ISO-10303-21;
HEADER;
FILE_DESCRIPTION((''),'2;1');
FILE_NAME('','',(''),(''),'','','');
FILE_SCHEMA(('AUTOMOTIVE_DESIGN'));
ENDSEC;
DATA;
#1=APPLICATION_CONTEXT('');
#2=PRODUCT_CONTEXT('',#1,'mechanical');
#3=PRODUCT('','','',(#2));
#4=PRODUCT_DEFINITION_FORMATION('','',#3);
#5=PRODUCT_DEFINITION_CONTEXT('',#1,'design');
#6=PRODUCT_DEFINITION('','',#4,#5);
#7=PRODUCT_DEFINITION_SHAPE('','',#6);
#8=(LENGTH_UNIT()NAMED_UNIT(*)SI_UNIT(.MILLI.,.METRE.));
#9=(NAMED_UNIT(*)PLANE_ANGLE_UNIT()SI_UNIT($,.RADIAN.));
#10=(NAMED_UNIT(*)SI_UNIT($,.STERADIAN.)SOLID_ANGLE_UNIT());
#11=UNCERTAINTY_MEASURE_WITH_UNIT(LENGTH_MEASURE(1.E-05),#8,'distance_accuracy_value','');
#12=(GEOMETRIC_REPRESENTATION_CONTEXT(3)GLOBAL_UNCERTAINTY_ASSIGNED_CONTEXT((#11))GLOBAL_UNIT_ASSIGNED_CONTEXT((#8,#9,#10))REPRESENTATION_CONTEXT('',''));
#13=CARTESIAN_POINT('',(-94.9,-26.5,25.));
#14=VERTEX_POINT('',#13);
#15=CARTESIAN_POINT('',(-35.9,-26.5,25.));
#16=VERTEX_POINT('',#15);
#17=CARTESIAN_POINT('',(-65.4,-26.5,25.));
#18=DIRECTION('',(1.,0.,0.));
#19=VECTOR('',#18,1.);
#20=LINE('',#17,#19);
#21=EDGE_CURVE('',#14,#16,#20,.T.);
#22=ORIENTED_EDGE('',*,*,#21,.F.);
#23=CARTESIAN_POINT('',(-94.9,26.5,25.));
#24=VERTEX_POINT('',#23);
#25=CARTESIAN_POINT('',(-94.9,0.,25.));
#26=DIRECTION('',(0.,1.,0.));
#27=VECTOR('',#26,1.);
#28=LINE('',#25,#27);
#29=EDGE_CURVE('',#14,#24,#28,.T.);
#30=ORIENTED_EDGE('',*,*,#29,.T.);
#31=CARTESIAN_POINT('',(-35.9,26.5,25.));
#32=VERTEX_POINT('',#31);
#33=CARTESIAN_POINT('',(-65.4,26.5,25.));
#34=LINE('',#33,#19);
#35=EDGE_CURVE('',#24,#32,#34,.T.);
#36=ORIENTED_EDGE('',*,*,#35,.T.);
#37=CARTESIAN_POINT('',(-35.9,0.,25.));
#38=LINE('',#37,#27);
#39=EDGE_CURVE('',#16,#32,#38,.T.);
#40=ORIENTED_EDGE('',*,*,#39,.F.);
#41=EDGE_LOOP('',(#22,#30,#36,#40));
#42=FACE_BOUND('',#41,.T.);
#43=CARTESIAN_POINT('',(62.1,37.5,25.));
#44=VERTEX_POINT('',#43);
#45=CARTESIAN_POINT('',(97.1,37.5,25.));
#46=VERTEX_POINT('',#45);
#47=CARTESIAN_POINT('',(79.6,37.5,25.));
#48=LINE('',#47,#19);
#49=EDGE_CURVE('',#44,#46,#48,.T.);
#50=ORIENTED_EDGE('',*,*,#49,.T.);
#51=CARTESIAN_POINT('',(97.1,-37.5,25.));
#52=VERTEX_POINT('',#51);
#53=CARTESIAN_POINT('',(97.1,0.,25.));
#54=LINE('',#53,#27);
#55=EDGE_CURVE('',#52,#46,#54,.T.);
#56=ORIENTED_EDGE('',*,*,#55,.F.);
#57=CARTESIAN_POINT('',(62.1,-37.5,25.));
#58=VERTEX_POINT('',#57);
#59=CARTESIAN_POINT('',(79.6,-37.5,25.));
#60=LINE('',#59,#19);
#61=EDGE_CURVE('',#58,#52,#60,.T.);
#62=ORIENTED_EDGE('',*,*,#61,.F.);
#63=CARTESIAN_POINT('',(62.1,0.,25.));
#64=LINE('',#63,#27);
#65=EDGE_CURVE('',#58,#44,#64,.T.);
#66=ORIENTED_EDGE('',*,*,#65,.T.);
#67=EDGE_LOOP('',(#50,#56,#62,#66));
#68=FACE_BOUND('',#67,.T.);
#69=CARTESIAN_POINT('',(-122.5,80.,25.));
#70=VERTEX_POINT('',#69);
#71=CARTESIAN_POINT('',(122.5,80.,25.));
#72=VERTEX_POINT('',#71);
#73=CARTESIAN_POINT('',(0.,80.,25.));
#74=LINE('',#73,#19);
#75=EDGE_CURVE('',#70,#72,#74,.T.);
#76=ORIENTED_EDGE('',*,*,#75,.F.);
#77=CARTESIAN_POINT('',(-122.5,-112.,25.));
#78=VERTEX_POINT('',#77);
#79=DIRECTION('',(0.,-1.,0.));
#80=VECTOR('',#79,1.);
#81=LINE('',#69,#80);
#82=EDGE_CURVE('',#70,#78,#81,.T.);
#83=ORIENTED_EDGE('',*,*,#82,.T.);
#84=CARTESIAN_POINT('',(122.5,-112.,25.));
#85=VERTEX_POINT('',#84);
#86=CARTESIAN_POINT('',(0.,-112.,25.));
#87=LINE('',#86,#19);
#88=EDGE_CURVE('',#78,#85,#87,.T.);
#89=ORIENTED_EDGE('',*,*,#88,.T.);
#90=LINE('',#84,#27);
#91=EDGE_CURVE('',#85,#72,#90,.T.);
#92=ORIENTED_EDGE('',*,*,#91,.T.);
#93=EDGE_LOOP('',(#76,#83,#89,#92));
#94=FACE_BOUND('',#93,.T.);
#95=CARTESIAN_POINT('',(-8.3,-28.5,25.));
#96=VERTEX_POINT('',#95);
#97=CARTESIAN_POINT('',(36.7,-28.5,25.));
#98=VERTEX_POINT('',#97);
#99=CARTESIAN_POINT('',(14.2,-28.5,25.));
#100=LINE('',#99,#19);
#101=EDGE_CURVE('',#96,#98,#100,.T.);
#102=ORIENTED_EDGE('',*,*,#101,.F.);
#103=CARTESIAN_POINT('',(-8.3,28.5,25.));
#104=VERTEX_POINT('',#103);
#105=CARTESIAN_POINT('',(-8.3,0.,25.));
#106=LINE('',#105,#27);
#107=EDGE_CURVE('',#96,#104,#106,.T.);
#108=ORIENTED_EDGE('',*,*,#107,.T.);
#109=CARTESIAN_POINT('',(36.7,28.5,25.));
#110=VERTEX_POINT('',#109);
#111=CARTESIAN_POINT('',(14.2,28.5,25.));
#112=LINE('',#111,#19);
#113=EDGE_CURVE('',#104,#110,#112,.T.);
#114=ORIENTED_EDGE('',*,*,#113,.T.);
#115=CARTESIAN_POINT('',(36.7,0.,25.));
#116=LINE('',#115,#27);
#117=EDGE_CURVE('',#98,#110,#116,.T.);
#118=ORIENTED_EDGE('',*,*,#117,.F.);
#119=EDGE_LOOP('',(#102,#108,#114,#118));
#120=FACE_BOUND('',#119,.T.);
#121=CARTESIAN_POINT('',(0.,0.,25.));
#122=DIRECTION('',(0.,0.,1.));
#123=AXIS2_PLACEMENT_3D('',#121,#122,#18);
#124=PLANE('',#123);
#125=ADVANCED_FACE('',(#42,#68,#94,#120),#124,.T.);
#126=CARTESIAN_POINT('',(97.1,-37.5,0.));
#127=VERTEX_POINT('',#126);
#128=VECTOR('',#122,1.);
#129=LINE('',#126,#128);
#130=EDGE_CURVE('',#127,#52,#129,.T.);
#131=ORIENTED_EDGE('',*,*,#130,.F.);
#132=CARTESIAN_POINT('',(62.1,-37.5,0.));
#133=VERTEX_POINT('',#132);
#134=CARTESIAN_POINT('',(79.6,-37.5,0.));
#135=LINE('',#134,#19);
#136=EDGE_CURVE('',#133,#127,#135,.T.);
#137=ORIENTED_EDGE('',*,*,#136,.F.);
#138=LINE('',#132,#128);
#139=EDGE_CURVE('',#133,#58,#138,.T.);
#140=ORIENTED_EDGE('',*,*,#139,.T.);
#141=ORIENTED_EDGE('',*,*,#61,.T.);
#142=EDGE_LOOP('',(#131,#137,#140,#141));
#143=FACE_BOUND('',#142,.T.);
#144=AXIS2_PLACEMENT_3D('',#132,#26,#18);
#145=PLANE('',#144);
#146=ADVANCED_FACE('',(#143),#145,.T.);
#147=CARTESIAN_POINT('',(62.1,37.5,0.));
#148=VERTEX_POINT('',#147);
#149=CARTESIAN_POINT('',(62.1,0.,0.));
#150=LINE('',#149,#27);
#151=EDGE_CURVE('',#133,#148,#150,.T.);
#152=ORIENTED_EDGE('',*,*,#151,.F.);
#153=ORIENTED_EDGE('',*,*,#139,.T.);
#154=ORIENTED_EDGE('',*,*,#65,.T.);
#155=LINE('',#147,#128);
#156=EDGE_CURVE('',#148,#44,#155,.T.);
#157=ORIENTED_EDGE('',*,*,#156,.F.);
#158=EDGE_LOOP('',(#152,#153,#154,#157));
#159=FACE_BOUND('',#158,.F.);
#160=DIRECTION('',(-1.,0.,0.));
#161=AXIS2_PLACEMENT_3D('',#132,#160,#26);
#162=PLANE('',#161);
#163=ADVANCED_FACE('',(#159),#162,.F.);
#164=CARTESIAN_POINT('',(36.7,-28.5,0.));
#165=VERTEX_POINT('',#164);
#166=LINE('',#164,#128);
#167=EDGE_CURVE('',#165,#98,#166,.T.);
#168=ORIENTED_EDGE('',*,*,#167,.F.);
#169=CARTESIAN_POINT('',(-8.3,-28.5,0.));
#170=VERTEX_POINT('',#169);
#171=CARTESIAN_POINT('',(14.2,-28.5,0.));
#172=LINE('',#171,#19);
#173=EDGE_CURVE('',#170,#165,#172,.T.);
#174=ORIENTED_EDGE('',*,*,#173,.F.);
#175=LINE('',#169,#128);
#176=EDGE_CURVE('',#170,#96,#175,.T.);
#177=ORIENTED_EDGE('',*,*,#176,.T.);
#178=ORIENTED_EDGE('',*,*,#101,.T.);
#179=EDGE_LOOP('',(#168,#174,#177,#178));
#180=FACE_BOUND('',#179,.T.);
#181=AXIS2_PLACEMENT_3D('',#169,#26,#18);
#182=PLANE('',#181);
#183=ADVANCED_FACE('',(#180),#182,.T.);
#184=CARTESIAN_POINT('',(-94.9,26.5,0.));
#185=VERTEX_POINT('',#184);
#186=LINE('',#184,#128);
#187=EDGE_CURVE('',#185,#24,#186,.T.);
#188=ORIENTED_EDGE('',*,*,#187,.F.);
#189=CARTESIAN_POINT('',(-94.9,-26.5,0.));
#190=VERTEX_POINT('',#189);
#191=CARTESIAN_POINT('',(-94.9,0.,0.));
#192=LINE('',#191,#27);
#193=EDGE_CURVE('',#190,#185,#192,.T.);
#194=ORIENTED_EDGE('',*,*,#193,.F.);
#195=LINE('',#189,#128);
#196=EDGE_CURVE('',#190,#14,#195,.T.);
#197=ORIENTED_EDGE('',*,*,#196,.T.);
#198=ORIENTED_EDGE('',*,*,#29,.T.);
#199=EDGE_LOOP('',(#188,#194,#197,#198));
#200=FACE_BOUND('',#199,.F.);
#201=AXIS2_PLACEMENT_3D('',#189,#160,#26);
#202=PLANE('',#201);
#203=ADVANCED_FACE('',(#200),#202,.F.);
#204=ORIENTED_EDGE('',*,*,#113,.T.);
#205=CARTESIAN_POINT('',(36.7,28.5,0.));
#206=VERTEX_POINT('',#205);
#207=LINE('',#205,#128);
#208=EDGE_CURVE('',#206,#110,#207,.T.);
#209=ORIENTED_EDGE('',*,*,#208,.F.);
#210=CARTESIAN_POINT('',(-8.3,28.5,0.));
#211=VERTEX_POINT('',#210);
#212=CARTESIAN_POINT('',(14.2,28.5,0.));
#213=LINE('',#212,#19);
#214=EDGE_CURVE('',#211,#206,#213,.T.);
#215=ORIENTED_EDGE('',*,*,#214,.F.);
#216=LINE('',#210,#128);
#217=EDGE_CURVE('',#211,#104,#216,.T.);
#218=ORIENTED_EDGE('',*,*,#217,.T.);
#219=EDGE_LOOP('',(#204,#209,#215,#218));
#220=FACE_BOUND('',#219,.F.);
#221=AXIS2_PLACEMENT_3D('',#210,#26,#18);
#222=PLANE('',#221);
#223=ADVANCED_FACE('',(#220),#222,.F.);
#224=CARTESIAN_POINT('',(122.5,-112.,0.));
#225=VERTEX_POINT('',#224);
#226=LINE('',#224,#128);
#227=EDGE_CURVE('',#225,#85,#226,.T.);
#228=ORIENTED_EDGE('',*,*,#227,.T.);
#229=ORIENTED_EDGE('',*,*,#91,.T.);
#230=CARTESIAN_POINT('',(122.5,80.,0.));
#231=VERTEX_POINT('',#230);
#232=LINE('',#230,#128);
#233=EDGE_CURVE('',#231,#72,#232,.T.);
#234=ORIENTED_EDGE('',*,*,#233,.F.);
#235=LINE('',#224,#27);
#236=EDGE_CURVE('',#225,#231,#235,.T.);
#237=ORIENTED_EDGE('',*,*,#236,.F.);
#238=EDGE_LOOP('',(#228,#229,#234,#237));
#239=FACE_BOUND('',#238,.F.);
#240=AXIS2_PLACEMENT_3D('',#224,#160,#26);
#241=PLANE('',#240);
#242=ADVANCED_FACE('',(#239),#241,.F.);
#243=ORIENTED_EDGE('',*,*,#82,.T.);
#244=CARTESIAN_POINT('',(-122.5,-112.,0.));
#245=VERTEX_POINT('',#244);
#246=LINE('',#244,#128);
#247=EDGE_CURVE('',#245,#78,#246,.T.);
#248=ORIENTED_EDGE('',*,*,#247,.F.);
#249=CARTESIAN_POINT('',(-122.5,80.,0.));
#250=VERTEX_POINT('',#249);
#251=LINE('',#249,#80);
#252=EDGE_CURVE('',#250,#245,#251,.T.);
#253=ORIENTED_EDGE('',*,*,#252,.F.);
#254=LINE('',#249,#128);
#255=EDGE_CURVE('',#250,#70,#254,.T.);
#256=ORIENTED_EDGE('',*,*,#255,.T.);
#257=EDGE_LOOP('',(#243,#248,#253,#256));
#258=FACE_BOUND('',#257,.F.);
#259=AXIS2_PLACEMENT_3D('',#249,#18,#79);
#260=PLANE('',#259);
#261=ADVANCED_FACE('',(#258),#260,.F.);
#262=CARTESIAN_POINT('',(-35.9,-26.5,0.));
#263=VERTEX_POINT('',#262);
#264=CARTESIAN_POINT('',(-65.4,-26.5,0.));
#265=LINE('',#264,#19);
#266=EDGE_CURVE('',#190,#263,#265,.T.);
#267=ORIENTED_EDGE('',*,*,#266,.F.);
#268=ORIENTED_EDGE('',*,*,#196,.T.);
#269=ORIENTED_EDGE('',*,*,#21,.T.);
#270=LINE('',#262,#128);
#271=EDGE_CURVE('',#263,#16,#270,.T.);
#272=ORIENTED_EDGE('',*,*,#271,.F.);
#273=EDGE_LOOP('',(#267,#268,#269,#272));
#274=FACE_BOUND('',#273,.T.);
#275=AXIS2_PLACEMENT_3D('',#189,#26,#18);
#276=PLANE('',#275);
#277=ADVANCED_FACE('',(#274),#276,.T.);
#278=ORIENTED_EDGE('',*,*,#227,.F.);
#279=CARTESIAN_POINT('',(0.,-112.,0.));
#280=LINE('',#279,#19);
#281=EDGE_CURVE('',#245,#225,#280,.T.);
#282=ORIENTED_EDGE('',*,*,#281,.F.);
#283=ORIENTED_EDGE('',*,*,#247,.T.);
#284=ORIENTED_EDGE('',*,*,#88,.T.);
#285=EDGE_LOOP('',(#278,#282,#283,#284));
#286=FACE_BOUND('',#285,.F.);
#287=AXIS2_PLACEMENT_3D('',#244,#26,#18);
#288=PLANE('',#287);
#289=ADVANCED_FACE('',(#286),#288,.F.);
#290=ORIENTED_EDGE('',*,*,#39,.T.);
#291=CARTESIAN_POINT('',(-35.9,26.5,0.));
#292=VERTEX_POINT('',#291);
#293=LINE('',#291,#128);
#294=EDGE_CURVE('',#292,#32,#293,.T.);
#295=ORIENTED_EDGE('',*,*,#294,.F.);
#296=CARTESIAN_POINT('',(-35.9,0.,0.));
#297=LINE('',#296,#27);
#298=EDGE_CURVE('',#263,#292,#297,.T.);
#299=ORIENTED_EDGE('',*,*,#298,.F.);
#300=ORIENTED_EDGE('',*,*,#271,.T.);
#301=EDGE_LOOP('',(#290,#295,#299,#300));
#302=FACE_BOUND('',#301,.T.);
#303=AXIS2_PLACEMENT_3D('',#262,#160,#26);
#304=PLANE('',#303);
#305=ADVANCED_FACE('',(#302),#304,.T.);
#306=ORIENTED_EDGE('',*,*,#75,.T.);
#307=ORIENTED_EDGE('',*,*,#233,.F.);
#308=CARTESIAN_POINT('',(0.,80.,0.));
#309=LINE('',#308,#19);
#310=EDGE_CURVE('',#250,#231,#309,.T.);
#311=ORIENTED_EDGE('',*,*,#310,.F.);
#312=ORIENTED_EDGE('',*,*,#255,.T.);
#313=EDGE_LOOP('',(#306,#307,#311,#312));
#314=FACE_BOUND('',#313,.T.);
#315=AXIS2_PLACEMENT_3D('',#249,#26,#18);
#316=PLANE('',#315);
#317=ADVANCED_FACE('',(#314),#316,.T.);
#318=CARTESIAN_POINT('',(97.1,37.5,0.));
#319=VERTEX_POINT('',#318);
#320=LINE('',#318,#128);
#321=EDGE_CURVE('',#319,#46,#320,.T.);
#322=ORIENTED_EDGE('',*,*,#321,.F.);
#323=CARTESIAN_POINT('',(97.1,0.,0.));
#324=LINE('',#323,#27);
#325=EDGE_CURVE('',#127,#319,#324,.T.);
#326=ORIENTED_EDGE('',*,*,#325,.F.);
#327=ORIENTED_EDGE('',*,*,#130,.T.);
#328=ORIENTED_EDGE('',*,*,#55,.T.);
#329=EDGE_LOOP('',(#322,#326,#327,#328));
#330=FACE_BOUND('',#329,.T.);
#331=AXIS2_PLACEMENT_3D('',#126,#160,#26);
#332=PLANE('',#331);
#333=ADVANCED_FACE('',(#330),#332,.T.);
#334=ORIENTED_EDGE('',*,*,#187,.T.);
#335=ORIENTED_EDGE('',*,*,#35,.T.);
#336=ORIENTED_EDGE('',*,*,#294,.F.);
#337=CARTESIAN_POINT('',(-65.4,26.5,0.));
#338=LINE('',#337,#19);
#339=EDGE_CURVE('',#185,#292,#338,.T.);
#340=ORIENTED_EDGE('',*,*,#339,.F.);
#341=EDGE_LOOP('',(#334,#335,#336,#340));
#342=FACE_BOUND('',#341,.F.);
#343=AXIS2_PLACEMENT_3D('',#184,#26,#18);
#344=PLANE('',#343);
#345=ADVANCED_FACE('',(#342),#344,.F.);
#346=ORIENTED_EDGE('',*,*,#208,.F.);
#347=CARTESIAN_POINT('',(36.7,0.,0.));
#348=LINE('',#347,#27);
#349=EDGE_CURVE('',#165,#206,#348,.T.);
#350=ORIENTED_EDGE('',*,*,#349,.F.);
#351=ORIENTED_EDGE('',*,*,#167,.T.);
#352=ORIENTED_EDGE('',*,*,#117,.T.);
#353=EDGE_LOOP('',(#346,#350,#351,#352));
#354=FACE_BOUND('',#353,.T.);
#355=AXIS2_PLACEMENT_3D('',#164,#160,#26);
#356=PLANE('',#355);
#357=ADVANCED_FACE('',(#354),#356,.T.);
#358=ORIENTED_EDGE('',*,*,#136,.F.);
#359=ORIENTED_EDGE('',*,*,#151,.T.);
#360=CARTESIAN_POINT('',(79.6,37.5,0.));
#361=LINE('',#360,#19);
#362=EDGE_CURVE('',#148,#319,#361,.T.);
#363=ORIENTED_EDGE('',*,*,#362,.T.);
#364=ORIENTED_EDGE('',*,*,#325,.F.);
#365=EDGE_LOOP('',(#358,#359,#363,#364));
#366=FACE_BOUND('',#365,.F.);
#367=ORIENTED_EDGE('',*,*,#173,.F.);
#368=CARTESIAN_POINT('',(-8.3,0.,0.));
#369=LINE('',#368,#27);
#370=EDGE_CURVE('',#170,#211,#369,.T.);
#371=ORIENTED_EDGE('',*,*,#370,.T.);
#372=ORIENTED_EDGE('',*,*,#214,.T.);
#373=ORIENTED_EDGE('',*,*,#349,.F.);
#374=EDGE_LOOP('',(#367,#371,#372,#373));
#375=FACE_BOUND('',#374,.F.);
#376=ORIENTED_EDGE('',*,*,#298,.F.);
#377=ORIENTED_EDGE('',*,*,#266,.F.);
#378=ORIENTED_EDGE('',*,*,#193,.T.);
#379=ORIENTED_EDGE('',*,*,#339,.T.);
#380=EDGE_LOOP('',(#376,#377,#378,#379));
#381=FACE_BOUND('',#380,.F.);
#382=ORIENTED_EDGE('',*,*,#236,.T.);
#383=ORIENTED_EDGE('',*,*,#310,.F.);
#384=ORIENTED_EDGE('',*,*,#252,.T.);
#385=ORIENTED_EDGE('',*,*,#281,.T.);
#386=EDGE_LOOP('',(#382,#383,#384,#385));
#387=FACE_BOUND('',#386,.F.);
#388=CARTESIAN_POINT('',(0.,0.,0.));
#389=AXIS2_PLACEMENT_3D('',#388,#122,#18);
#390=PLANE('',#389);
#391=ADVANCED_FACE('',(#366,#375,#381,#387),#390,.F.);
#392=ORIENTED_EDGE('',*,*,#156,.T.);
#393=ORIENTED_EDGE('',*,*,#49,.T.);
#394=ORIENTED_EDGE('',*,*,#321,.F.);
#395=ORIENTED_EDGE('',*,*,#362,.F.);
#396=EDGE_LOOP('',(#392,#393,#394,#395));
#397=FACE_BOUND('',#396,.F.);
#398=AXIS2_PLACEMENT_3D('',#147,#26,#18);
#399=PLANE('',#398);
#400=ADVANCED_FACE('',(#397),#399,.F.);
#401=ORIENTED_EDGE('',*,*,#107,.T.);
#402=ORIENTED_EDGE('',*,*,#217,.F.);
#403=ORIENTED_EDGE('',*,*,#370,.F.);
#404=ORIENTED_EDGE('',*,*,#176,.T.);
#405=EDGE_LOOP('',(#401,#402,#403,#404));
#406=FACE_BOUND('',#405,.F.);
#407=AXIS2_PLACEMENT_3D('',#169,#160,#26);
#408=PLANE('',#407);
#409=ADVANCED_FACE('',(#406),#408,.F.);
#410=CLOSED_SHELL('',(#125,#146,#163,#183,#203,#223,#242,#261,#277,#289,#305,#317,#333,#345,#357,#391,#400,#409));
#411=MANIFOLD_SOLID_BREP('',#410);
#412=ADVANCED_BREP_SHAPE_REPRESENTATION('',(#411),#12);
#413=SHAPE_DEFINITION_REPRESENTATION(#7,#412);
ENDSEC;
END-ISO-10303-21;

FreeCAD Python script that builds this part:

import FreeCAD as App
import Part
import Sketcher


def add_polygon(sketch, points):
    """Adds a closed chain of lines whose ends are joined by coincident constraints."""
    first, n = sketch.GeometryCount, len(points)
    for a, b in zip(points, points[1:] + points[:1]):
        sketch.addGeometry(Part.LineSegment(App.Vector(*a, 0), App.Vector(*b, 0)), False)
    for i in range(n):
        sketch.addConstraint(Sketcher.Constraint("Coincident", first + i, 2, first + (i + 1) % n, 1))

doc = App.newDocument("Part")
body = doc.addObject("PartDesign::Body", "Body")

sketch1 = body.newObject("Sketcher::SketchObject", "Sketch")
sketch1.AttachmentSupport = (doc.getObject("XY_Plane"), [""])
sketch1.MapMode = "FlatFace"
add_polygon(sketch1, [(-122, 80), (-122, -112), (122, -112), (122, 80)])
add_polygon(sketch1, [(-36, -26), (-95, -26), (-95, 26), (-36, 26)])
add_polygon(sketch1, [(37, -28), (-8, -28), (-8, 28), (37, 28)])
add_polygon(sketch1, [(97, -38), (62, -38), (62, 38), (97, 38)])
sketch1.addConstraint(Sketcher.Constraint("Vertical", 0))
sketch1.addConstraint(Sketcher.Constraint("Horizontal", 1))
sketch1.addConstraint(Sketcher.Constraint("Vertical", 2))
sketch1.addConstraint(Sketcher.Constraint("Horizontal", 3))
sketch1.addConstraint(Sketcher.Constraint("Horizontal", 4))
sketch1.addConstraint(Sketcher.Constraint("Vertical", 5))
sketch1.addConstraint(Sketcher.Constraint("Horizontal", 6))
sketch1.addConstraint(Sketcher.Constraint("Vertical", 7))
sketch1.addConstraint(Sketcher.Constraint("Horizontal", 8))
sketch1.addConstraint(Sketcher.Constraint("Vertical", 9))
sketch1.addConstraint(Sketcher.Constraint("Horizontal", 10))
sketch1.addConstraint(Sketcher.Constraint("Vertical", 11))
sketch1.addConstraint(Sketcher.Constraint("Horizontal", 12))
sketch1.addConstraint(Sketcher.Constraint("Vertical", 13))
sketch1.addConstraint(Sketcher.Constraint("Horizontal", 14))
sketch1.addConstraint(Sketcher.Constraint("Vertical", 15))
sketch1.addConstraint(Sketcher.Constraint("DistanceX", 1, 1, 1, 2, 245.0))
sketch1.addConstraint(Sketcher.Constraint("DistanceX", 4, 2, 4, 1, 59.0))
sketch1.addConstraint(Sketcher.Constraint("DistanceX", 8, 2, 8, 1, 45.0))
sketch1.addConstraint(Sketcher.Constraint("DistanceX", 12, 2, 12, 1, 35.0))
sketch1.addConstraint(Sketcher.Constraint("DistanceY", 0, 2, 0, 1, 192.0))
sketch1.addConstraint(Sketcher.Constraint("DistanceY", 5, 1, 5, 2, 53.0))
sketch1.addConstraint(Sketcher.Constraint("DistanceY", 9, 1, 9, 2, 57.0))
sketch1.addConstraint(Sketcher.Constraint("DistanceY", 13, 1, 13, 2, 75.0))
sketch1.addConstraint(Sketcher.Constraint("DistanceY", 0, 2, -1, 1, 112.0))
sketch1.addConstraint(Sketcher.Constraint("DistanceY", 8, 2, 7, 2, 2.0))
sketch1.addConstraint(Sketcher.Constraint("DistanceY", 12, 2, 11, 2, 9.0))
sketch1.addConstraint(Sketcher.Constraint("DistanceX", 0, 2, -1, 1, 122.5))
sketch1.addConstraint(Sketcher.Constraint("DistanceX", 4, 2, -1, 1, 94.9))
sketch1.addConstraint(Sketcher.Constraint("DistanceY", 4, 2, -1, 1, 26.5))
sketch1.addConstraint(Sketcher.Constraint("DistanceX", 8, 2, -1, 1, 8.3))
sketch1.addConstraint(Sketcher.Constraint("DistanceX", -1, 1, 12, 2, 62.1))
pad1 = body.newObject("PartDesign::Pad", "Pad")
pad1.Profile = sketch1
pad1.Length = 25

doc.recompute()
